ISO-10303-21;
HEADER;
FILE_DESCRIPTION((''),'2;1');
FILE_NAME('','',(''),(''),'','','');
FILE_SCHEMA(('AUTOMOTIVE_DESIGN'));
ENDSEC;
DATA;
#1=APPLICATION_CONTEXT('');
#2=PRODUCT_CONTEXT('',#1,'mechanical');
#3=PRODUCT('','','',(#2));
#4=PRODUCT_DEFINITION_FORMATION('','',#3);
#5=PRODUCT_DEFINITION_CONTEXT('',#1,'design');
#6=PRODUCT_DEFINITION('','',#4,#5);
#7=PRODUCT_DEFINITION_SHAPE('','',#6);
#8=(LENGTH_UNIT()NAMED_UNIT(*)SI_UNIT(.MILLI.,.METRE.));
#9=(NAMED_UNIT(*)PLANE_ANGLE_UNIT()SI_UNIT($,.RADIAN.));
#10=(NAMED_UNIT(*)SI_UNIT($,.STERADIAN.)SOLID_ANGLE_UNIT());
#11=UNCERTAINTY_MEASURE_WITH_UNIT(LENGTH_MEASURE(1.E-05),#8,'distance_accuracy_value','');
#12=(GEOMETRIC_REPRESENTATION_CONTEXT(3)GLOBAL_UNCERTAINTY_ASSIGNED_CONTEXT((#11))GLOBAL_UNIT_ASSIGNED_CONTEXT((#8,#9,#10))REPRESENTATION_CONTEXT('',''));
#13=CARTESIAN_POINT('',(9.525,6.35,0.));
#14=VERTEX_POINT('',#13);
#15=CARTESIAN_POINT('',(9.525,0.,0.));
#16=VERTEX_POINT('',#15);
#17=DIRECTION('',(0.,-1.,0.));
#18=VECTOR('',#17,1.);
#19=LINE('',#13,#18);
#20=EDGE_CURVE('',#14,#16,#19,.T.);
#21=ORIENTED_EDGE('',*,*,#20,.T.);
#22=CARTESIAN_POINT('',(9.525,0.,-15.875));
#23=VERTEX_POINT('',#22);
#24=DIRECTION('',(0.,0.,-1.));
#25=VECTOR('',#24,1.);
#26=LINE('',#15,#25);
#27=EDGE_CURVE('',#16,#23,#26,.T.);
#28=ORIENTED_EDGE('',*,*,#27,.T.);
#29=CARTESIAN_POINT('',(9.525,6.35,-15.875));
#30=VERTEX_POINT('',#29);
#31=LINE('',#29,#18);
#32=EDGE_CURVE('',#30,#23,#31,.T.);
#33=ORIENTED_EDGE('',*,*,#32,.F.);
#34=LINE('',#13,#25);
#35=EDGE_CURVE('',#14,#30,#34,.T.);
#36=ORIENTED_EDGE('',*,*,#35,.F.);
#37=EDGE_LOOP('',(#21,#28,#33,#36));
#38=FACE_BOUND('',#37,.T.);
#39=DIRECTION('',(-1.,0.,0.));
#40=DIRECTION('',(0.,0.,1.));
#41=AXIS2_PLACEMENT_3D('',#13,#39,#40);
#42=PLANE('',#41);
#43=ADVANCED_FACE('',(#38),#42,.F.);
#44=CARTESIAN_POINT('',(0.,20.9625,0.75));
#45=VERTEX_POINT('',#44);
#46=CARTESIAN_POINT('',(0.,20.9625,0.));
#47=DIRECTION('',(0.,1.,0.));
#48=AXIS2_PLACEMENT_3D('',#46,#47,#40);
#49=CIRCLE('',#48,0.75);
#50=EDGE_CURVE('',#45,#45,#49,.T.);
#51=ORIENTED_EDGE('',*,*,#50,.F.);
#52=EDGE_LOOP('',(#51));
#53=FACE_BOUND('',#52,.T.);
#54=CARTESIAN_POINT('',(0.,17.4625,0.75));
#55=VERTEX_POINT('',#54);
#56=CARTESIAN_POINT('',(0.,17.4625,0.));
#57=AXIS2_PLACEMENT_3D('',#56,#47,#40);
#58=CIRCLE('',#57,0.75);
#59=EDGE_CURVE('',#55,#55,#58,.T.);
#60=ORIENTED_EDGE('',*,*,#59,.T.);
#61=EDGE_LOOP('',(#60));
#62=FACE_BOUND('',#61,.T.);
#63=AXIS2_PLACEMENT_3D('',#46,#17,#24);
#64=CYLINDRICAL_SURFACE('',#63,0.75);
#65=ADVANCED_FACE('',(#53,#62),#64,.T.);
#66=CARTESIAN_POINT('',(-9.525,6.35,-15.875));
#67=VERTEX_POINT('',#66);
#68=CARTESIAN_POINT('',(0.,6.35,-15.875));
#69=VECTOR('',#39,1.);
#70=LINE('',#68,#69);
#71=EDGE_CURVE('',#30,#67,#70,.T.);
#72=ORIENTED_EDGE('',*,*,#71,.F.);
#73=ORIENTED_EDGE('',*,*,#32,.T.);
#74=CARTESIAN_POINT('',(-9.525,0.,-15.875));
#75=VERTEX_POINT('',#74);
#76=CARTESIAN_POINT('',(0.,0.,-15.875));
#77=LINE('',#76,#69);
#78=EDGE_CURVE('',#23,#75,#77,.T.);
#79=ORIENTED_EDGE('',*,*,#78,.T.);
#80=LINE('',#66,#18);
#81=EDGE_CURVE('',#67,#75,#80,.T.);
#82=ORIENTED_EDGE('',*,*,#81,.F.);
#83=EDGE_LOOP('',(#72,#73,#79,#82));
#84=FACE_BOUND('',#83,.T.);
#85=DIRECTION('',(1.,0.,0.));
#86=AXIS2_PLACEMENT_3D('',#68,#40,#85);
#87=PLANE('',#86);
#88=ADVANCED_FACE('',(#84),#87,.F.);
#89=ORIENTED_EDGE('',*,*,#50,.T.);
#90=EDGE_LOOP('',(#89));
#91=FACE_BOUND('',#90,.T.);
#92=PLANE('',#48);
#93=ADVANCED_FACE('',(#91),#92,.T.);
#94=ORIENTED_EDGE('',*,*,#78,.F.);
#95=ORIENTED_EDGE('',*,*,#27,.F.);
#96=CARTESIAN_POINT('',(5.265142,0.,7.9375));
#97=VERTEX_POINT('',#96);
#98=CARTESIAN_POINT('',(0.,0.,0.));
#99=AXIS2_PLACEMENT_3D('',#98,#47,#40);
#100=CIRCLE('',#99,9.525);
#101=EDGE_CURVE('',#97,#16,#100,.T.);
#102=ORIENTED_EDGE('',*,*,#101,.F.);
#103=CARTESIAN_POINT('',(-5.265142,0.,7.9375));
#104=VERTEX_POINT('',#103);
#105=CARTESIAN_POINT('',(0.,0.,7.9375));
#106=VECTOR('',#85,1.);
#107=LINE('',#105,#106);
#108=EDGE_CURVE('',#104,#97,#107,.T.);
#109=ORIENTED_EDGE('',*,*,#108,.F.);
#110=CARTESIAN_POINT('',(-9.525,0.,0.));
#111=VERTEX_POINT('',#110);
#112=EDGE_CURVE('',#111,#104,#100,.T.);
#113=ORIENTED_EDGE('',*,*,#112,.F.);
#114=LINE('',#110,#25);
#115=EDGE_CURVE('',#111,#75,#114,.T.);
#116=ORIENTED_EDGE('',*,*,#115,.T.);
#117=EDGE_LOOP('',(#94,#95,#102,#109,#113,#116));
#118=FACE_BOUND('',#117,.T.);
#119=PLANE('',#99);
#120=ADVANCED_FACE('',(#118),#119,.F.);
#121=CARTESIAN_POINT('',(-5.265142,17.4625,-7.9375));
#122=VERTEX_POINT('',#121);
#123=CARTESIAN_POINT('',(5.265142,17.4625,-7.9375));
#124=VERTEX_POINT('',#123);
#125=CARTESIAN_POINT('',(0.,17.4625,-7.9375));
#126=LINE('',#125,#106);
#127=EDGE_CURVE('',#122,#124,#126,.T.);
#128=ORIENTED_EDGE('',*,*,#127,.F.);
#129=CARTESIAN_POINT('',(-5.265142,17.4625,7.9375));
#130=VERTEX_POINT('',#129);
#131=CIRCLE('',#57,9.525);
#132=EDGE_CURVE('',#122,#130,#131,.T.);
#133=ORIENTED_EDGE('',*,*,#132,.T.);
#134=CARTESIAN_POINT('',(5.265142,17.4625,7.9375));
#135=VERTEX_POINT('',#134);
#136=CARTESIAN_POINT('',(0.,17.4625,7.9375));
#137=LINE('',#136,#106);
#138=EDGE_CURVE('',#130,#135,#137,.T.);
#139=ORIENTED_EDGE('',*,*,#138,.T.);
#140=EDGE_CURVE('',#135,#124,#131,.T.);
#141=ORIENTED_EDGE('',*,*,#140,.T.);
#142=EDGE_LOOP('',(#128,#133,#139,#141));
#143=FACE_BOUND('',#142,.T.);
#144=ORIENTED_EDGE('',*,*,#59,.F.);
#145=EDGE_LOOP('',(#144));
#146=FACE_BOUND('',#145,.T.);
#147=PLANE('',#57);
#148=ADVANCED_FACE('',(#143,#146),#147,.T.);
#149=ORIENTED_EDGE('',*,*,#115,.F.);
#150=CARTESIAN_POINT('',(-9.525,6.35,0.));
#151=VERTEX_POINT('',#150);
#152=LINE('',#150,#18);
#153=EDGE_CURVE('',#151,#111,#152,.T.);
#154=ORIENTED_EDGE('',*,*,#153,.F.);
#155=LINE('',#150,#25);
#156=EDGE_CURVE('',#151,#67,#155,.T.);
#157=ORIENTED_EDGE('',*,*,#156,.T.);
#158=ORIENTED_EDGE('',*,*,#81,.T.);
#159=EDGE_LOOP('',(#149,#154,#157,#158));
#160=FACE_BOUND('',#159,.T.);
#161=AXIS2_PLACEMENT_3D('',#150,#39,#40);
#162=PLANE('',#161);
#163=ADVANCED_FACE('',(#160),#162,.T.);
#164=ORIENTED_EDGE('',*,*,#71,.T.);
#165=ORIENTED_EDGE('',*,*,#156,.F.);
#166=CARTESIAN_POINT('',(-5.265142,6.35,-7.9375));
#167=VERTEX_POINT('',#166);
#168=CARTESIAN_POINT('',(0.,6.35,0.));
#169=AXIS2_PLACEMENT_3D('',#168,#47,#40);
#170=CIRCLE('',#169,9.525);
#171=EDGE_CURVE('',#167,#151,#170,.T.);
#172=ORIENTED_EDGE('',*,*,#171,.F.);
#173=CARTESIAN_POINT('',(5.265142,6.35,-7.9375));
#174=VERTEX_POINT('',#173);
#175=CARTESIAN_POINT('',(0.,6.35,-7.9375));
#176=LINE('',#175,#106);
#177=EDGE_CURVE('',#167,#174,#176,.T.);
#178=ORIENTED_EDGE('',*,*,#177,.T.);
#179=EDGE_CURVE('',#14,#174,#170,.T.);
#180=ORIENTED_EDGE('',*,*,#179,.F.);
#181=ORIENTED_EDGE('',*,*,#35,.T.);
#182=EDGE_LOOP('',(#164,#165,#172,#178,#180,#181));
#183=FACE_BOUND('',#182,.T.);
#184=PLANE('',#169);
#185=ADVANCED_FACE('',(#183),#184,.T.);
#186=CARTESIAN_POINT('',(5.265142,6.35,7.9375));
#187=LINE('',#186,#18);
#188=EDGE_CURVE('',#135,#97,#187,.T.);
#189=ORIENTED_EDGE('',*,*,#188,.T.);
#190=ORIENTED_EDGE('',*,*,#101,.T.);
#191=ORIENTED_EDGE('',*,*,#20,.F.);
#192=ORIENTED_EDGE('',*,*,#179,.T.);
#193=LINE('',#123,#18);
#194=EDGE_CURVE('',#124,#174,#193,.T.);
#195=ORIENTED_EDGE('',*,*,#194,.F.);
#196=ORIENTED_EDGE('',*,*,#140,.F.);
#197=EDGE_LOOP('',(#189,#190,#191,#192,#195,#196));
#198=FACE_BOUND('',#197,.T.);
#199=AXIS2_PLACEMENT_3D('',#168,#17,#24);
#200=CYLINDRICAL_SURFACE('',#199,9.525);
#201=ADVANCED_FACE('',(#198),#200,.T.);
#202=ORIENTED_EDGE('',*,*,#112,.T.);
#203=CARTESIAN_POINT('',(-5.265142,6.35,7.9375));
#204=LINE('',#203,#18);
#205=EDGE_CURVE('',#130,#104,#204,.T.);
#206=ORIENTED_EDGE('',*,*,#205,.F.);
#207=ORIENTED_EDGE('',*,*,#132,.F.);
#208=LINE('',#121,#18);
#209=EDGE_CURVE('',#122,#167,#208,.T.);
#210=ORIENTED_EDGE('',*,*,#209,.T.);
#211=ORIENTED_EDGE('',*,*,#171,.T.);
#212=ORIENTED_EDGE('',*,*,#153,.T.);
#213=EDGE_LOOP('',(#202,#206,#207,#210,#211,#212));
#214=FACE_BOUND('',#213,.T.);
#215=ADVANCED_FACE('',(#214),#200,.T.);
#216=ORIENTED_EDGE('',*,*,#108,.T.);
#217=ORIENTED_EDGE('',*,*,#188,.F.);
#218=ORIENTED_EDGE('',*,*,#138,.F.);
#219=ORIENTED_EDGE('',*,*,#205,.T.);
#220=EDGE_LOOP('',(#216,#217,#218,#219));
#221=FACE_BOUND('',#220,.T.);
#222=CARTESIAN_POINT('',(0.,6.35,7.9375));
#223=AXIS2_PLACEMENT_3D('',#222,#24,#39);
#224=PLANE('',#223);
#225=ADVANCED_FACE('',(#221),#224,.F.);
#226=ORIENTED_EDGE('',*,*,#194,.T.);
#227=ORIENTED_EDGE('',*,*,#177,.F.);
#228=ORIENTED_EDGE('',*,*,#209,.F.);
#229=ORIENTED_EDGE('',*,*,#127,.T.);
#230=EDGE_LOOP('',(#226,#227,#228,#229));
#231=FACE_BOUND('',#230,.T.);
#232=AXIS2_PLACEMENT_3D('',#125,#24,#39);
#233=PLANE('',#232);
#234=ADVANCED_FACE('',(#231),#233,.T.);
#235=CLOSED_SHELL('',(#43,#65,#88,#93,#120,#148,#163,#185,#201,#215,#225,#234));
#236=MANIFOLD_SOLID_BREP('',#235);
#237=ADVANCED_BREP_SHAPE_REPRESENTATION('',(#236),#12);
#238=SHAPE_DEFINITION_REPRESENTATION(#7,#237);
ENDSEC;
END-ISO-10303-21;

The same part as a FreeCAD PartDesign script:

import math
import FreeCAD as App
import Part
import Sketcher
Q = App.Units.Quantity

doc = App.newDocument("Part")
body = doc.addObject("PartDesign::Body", "Body")

sketch1 = body.newObject("Sketcher::SketchObject", "Sketch")
sketch1.AttachmentSupport = (doc.getObject("XZ_Plane"), [""])
sketch1.MapMode = "FlatFace"
sketch1.addGeometry(Part.LineSegment(App.Vector(10, -16, 0), App.Vector(-10, -16, 0)), False)
sketch1.addGeometry(Part.LineSegment(App.Vector(-10, -16, 0), App.Vector(-10, 0, 0)), False)
sketch1.addGeometry(Part.ArcOfCircle(Part.Circle(App.Vector(0, 0, 0), App.Vector(0, 0, 1), 10), math.radians(124), math.radians(180)), False)
sketch1.addGeometry(Part.LineSegment(App.Vector(-5, 8, 0), App.Vector(5, 8, 0)), False)
sketch1.addGeometry(Part.ArcOfCircle(Part.Circle(App.Vector(0, 0, 0), App.Vector(0, 0, 1), 10), math.radians(0), math.radians(56)), False)
sketch1.addGeometry(Part.LineSegment(App.Vector(10, 0, 0), App.Vector(10, -16, 0)), False)
sketch1.addConstraint(Sketcher.Constraint("Coincident", 0, 2, 1, 1))
sketch1.addConstraint(Sketcher.Constraint("Tangent", 1, 2, 2, 2))
sketch1.addConstraint(Sketcher.Constraint("Coincident", 2, 1, 3, 1))
sketch1.addConstraint(Sketcher.Constraint("Coincident", 3, 2, 4, 2))
sketch1.addConstraint(Sketcher.Constraint("Tangent", 4, 1, 5, 1))
sketch1.addConstraint(Sketcher.Constraint("Coincident", 5, 2, 0, 1))
sketch1.addConstraint(Sketcher.Constraint("Horizontal", 0))
sketch1.addConstraint(Sketcher.Constraint("Vertical", 1))
sketch1.addConstraint(Sketcher.Constraint("Horizontal", 3))
sketch1.addConstraint(Sketcher.Constraint("Vertical", 5))
sketch1.addConstraint(Sketcher.Constraint("Coincident", 2, 3, -1, 1))
sketch1.addConstraint(Sketcher.Constraint("Coincident", 4, 3, -1, 1))
sketch1.addConstraint(Sketcher.Constraint("Equal", 2, 4))
sketch1.addConstraint(Sketcher.Constraint("Radius", 2, Q("0.375 in")))
sketch1.addConstraint(Sketcher.Constraint("DistanceY", 1, 1, 1, 2, Q("0.625 in")))
sketch1.addConstraint(Sketcher.Constraint("DistanceY", -1, 1, 2, 1, Q("0.3125 in")))
pad1 = body.newObject("PartDesign::Pad", "Pad")
pad1.Profile = sketch1
pad1.Length = Q("0.25 in")
pad1.Reversed = True

sketch2 = body.newObject("Sketcher::SketchObject", "Sketch001")
sketch2.AttachmentSupport = (doc.getObject("XZ_Plane"), [""])
sketch2.MapMode = "FlatFace"
sketch2.AttachmentOffset = App.Placement(App.Vector(0, 0, -0.25 * 25.4), App.Rotation())
sketch2.addGeometry(Part.ArcOfCircle(Part.Circle(App.Vector(0, 0, 0), App.Vector(0, 0, 1), 10), math.radians(-180), math.radians(-124)), False)
sketch2.addGeometry(Part.ArcOfCircle(Part.Circle(App.Vector(0, 0, 0), App.Vector(0, 0, 1), 10), math.radians(124), math.radians(180)), False)
sketch2.addGeometry(Part.LineSegment(App.Vector(-5, 8, 0), App.Vector(5, 8, 0)), False)
sketch2.addGeometry(Part.ArcOfCircle(Part.Circle(App.Vector(0, 0, 0), App.Vector(0, 0, 1), 10), math.radians(0), math.radians(56)), False)
sketch2.addGeometry(Part.ArcOfCircle(Part.Circle(App.Vector(0, 0, 0), App.Vector(0, 0, 1), 10), math.radians(-56), math.radians(0)), False)
sketch2.addGeometry(Part.LineSegment(App.Vector(5, -8, 0), App.Vector(-5, -8, 0)), False)
sketch2.addConstraint(Sketcher.Constraint("Tangent", 0, 1, 1, 2))
sketch2.addConstraint(Sketcher.Constraint("Coincident", 1, 1, 2, 1))
sketch2.addConstraint(Sketcher.Constraint("Coincident", 2, 2, 3, 2))
sketch2.addConstraint(Sketcher.Constraint("Tangent", 3, 1, 4, 2))
sketch2.addConstraint(Sketcher.Constraint("Coincident", 4, 1, 5, 1))
sketch2.addConstraint(Sketcher.Constraint("Coincident", 5, 2, 0, 2))
sketch2.addConstraint(Sketcher.Constraint("Horizontal", 2))
sketch2.addConstraint(Sketcher.Constraint("Horizontal", 5))
sketch2.addConstraint(Sketcher.Constraint("Coincident", 0, 3, -1, 1))
sketch2.addConstraint(Sketcher.Constraint("Coincident", 3, 3, -1, 1))
sketch2.addConstraint(Sketcher.Constraint("Equal", 0, 1))
sketch2.addConstraint(Sketcher.Constraint("Equal", 1, 3))
sketch2.addConstraint(Sketcher.Constraint("Equal", 3, 4))
sketch2.addConstraint(Sketcher.Constraint("PointOnObject", 0, 1, -1))
sketch2.addConstraint(Sketcher.Constraint("PointOnObject", 3, 1, -1))
sketch2.addConstraint(Sketcher.Constraint("Vertical", 2, 2, 4, 1))
sketch2.addConstraint(Sketcher.Constraint("Radius", 0, Q("0.375 in")))
sketch2.addConstraint(Sketcher.Constraint("DistanceY", -1, 1, 1, 1, Q("0.3125 in")))
pad2 = body.newObject("PartDesign::Pad", "Pad001")
pad2.Profile = sketch2
pad2.Length = Q("0.4375 in")
pad2.Reversed = True

sketch3 = body.newObject("Sketcher::SketchObject", "Sketch002")
sketch3.AttachmentSupport = (doc.getObject("XZ_Plane"), [""])
sketch3.MapMode = "FlatFace"
sketch3.AttachmentOffset = App.Placement(App.Vector(0, 0, -0.6875 * 25.4), App.Rotation())
sketch3.addGeometry(Part.Circle(App.Vector(0, 0, 0), App.Vector(0, 0, 1), 0.8), False)
sketch3.addConstraint(Sketcher.Constraint("Coincident", 0, 3, -1, 1))
sketch3.addConstraint(Sketcher.Constraint("Diameter", 0, Q("1.5 mm")))
pad3 = body.newObject("PartDesign::Pad", "Pad002")
pad3.Profile = sketch3
pad3.Length = 3.5
pad3.Reversed = True

doc.recompute()
